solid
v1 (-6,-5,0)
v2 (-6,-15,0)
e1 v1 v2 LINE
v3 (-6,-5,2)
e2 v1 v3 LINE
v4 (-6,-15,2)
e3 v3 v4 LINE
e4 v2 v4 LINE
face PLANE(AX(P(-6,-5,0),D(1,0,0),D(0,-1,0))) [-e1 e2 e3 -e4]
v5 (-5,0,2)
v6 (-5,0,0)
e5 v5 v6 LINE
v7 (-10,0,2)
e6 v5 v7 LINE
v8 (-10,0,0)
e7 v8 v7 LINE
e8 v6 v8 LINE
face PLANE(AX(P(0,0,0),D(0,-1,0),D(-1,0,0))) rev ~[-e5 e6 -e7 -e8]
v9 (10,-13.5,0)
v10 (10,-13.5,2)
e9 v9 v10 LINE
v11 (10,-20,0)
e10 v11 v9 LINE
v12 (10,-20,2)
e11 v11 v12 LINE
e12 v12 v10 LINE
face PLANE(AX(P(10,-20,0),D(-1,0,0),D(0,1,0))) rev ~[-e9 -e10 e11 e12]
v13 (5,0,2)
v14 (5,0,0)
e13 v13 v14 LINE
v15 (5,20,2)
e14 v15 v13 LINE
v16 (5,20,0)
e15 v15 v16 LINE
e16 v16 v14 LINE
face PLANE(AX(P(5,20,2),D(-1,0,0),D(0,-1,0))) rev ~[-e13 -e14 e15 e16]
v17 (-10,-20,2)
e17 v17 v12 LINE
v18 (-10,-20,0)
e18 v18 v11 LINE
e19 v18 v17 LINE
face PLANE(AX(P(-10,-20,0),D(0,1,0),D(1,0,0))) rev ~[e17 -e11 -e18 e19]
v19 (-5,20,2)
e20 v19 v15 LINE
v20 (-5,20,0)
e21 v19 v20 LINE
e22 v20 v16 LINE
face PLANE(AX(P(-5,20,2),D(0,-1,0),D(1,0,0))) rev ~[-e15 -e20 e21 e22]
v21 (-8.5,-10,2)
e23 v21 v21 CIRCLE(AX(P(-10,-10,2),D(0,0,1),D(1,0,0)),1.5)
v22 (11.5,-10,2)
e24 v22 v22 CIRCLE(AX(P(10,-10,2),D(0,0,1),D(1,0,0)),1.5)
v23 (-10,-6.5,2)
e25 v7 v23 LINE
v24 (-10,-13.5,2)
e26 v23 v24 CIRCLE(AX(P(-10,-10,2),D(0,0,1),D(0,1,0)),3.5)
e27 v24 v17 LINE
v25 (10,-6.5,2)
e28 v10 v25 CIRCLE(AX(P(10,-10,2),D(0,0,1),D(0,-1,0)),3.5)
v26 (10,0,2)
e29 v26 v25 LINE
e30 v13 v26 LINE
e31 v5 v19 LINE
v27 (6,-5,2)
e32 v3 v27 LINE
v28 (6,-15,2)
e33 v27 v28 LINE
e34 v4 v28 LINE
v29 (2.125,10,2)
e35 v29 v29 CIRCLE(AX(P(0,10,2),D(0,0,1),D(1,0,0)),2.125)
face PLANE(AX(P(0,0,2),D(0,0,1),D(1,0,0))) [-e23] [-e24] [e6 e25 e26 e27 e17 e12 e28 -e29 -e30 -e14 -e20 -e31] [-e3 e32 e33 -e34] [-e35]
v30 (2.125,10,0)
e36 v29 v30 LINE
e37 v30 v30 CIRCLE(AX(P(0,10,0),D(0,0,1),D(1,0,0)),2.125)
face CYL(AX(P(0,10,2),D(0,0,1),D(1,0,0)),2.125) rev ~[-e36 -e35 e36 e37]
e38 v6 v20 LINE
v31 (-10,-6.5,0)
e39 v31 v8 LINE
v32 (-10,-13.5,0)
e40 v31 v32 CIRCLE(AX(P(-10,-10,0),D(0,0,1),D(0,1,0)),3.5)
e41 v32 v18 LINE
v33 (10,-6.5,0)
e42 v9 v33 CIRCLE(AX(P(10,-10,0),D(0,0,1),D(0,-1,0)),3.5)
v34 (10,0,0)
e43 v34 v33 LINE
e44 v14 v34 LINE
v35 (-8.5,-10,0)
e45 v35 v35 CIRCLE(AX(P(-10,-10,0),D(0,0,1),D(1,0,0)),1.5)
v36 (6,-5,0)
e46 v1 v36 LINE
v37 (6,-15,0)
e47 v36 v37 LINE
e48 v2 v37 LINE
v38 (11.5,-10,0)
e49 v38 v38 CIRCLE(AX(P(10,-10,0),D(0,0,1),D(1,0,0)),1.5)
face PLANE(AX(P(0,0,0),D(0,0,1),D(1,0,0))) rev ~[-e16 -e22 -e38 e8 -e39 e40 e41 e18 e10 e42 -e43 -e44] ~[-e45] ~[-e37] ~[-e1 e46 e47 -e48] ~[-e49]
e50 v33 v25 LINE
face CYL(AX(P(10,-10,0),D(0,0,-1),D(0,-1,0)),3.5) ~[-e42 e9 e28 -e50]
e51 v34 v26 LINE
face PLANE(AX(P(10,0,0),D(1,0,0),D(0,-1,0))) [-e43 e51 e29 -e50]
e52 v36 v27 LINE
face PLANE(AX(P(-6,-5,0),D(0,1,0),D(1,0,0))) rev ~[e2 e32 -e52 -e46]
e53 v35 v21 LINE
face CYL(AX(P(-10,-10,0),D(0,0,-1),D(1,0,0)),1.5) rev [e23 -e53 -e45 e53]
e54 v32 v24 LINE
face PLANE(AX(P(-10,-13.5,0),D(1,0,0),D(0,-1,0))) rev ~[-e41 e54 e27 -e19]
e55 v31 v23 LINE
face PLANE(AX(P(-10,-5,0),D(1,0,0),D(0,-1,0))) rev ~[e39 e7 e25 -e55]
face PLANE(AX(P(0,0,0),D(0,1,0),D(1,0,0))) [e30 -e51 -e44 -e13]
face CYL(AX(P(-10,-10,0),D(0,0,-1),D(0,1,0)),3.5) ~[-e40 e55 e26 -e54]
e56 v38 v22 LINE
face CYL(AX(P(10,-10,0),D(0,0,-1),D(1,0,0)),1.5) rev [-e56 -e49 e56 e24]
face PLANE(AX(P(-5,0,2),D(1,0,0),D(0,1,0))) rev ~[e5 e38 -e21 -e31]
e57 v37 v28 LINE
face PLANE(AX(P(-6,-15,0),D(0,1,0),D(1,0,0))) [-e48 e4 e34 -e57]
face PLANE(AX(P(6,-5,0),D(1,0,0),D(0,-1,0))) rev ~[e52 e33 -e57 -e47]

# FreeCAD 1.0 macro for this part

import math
import FreeCAD as App
import Part
import Sketcher
Q = App.Units.Quantity

doc = App.newDocument("Part")
params = doc.addObject("Spreadsheet::Sheet", "Params")
for row, (alias, value) in enumerate([
    ("sketch1_diameter", "3 mm"),
    ("sketch1_radius", "3.5 mm"),
    ("sketch1_width", "20 mm"),
    ("sketch1_height", "10 mm"),
    ("sketch1_width2", "12 mm"),
    ("pad1_length", "2 mm"),
    ("sketch2_diameter", "4.25 mm"),
    ("sketch2_width", "10 mm"),
    ("sketch2_height", "20 mm"),
    ("pad2_length", "2 mm"),
], start=1):
    params.set(f"A{row}", alias)
    params.set(f"B{row}", "=" + value)
    params.setAlias(f"B{row}", alias)

body = doc.addObject("PartDesign::Body", "Body")

# Sketch on XY plane
sketch1 = doc.addObject("Sketcher::SketchObject", "Sketch")
body.addObject(sketch1)
sketch1.AttachmentSupport = (doc.XY_Plane, [""])
sketch1.MapMode = "FlatFace"
sketch1.addGeometry([
    Part.LineSegment(App.Vector(10, 0, 0), App.Vector(-10, 0, 0)),  # 0
    Part.LineSegment(App.Vector(-10, 0, 0), App.Vector(-10, -6.5, 0)),  # 1
    Part.ArcOfCircle(Part.Circle(App.Vector(-10, -10, 0), App.Vector(0, 0, 1), 3.5), math.radians(90), math.radians(270)),  # 2
    Part.LineSegment(App.Vector(-10, -13.5, 0), App.Vector(-10, -20, 0)),  # 3
    Part.LineSegment(App.Vector(-10, -20, 0), App.Vector(10, -20, 0)),  # 4
    Part.LineSegment(App.Vector(10, -20, 0), App.Vector(10, -13.5, 0)),  # 5
    Part.ArcOfCircle(Part.Circle(App.Vector(10, -10, 0), App.Vector(0, 0, 1), 3.5), math.radians(-90), math.radians(90)),  # 6
    Part.LineSegment(App.Vector(10, -6.5, 0), App.Vector(10, 0, 0)),  # 7
    Part.Circle(App.Vector(-10, -10, 0), App.Vector(0, 0, 1), 1.5),  # 8
    Part.LineSegment(App.Vector(-6, -15, 0), App.Vector(-6, -5, 0)),  # 9
    Part.LineSegment(App.Vector(-6, -5, 0), App.Vector(6, -5, 0)),  # 10
    Part.LineSegment(App.Vector(6, -5, 0), App.Vector(6, -15, 0)),  # 11
    Part.LineSegment(App.Vector(6, -15, 0), App.Vector(-6, -15, 0)),  # 12
    Part.Circle(App.Vector(10, -10, 0), App.Vector(0, 0, 1), 1.5),  # 13
], False)
sketch1.addConstraint([
    Sketcher.Constraint("Coincident", 0, 2, 1, 1),
    Sketcher.Constraint("Coincident", 1, 2, 2, 1),
    Sketcher.Constraint("Coincident", 2, 2, 3, 1),
    Sketcher.Constraint("Coincident", 3, 2, 4, 1),
    Sketcher.Constraint("Coincident", 4, 2, 5, 1),
    Sketcher.Constraint("Coincident", 5, 2, 6, 1),
    Sketcher.Constraint("Coincident", 6, 2, 7, 1),
    Sketcher.Constraint("Coincident", 7, 2, 0, 1),
    Sketcher.Constraint("Coincident", 9, 2, 10, 1),
    Sketcher.Constraint("Coincident", 10, 2, 11, 1),
    Sketcher.Constraint("Coincident", 11, 2, 12, 1),
    Sketcher.Constraint("Coincident", 12, 2, 9, 1),
    Sketcher.Constraint("Horizontal", 0),
    Sketcher.Constraint("Vertical", 1),
    Sketcher.Constraint("Vertical", 3),
    Sketcher.Constraint("Horizontal", 4),
    Sketcher.Constraint("Vertical", 5),
    Sketcher.Constraint("Vertical", 7),
    Sketcher.Constraint("Vertical", 9),
    Sketcher.Constraint("Horizontal", 10),
    Sketcher.Constraint("Vertical", 11),
    Sketcher.Constraint("Horizontal", 12),
    Sketcher.Constraint("Coincident", 8, 3, 2, 3),
    Sketcher.Constraint("Coincident", 13, 3, 6, 3),
    Sketcher.Constraint("Equal", 2, 6),
    Sketcher.Constraint("Equal", 8, 13),
    Sketcher.Constraint("Symmetric", 0, 2, 7, 2, -1, 1),
    Sketcher.Constraint("Symmetric", 2, 3, 6, 3, -2),
    Sketcher.Constraint("Vertical", 8, 3, 0, 2),
    Sketcher.Constraint("Vertical", 1, 2, 2, 2),
    Sketcher.Constraint("Vertical", 13, 3, 4, 2),
    Sketcher.Constraint("Equal", 1, 3),
    Sketcher.Constraint("Diameter", 8, Q("3 mm")),
    Sketcher.Constraint("Radius", 2, Q("3.5 mm")),
    Sketcher.Constraint("DistanceX", 0, 2, 0, 1, Q("20 mm")),
    Sketcher.Constraint("DistanceY", 9, 1, 9, 2, Q("10 mm")),
    Sketcher.Constraint("DistanceY", 2, 3, -1, 1, Q("10 mm")),
    Sketcher.Constraint("DistanceX", 10, 1, 10, 2, Q("12 mm")),
    Sketcher.Constraint("DistanceX", 9, 2, -1, 1, Q("6 mm")),
    Sketcher.Constraint("DistanceY", 9, 2, -1, 1, Q("5 mm")),
])
sketch1.setExpression("Constraints[32]", "Params.sketch1_diameter")
sketch1.setExpression("Constraints[33]", "Params.sketch1_radius")
sketch1.setExpression("Constraints[34]", "Params.sketch1_width")
sketch1.setExpression("Constraints[35]", "Params.sketch1_height")
sketch1.setExpression("Constraints[37]", "Params.sketch1_width2")
pad1 = doc.addObject("PartDesign::Pad", "Pad")
body.addObject(pad1)
pad1.Profile = sketch1
pad1.setExpression("Length", "Params.pad1_length")

# Sketch on XY plane
sketch2 = doc.addObject("Sketcher::SketchObject", "Sketch001")
body.addObject(sketch2)
sketch2.AttachmentSupport = (doc.XY_Plane, [""])
sketch2.MapMode = "FlatFace"
sketch2.AttachmentOffset = App.Placement(App.Vector(0, 0, 2), App.Rotation())
sketch2.addGeometry([
    Part.LineSegment(App.Vector(-5, 0, 0), App.Vector(5, 0, 0)),  # 0
    Part.LineSegment(App.Vector(5, 0, 0), App.Vector(5, 20, 0)),  # 1
    Part.LineSegment(App.Vector(5, 20, 0), App.Vector(-5, 20, 0)),  # 2
    Part.LineSegment(App.Vector(-5, 20, 0), App.Vector(-5, 0, 0)),  # 3
    Part.Circle(App.Vector(0, 10, 0), App.Vector(0, 0, 1), 2.1),  # 4
], False)
sketch2.addConstraint([
    Sketcher.Constraint("Coincident", 0, 2, 1, 1),
    Sketcher.Constraint("Coincident", 1, 2, 2, 1),
    Sketcher.Constraint("Coincident", 2, 2, 3, 1),
    Sketcher.Constraint("Coincident", 3, 2, 0, 1),
    Sketcher.Constraint("Horizontal", 0),
    Sketcher.Constraint("Vertical", 1),
    Sketcher.Constraint("Horizontal", 2),
    Sketcher.Constraint("Vertical", 3),
    Sketcher.Constraint("Symmetric", 0, 2, 3, 2, -1, 1),
    Sketcher.Constraint("PointOnObject", 4, 3, -2),
    Sketcher.Constraint("Diameter", 4, Q("4.25 mm")),
    Sketcher.Constraint("DistanceX", 0, 1, 0, 2, Q("10 mm")),
    Sketcher.Constraint("DistanceY", 1, 1, 1, 2, Q("20 mm")),
    Sketcher.Constraint("DistanceY", -1, 1, 4, 3, Q("10 mm")),
])
sketch2.setExpression("Constraints[10]", "Params.sketch2_diameter")
sketch2.setExpression("Constraints[11]", "Params.sketch2_width")
sketch2.setExpression("Constraints[12]", "Params.sketch2_height")
pad2 = doc.addObject("PartDesign::Pad", "Pad001")
body.addObject(pad2)
pad2.Profile = sketch2
pad2.setExpression("Length", "Params.pad2_length")
pad2.Reversed = True

doc.recompute()
